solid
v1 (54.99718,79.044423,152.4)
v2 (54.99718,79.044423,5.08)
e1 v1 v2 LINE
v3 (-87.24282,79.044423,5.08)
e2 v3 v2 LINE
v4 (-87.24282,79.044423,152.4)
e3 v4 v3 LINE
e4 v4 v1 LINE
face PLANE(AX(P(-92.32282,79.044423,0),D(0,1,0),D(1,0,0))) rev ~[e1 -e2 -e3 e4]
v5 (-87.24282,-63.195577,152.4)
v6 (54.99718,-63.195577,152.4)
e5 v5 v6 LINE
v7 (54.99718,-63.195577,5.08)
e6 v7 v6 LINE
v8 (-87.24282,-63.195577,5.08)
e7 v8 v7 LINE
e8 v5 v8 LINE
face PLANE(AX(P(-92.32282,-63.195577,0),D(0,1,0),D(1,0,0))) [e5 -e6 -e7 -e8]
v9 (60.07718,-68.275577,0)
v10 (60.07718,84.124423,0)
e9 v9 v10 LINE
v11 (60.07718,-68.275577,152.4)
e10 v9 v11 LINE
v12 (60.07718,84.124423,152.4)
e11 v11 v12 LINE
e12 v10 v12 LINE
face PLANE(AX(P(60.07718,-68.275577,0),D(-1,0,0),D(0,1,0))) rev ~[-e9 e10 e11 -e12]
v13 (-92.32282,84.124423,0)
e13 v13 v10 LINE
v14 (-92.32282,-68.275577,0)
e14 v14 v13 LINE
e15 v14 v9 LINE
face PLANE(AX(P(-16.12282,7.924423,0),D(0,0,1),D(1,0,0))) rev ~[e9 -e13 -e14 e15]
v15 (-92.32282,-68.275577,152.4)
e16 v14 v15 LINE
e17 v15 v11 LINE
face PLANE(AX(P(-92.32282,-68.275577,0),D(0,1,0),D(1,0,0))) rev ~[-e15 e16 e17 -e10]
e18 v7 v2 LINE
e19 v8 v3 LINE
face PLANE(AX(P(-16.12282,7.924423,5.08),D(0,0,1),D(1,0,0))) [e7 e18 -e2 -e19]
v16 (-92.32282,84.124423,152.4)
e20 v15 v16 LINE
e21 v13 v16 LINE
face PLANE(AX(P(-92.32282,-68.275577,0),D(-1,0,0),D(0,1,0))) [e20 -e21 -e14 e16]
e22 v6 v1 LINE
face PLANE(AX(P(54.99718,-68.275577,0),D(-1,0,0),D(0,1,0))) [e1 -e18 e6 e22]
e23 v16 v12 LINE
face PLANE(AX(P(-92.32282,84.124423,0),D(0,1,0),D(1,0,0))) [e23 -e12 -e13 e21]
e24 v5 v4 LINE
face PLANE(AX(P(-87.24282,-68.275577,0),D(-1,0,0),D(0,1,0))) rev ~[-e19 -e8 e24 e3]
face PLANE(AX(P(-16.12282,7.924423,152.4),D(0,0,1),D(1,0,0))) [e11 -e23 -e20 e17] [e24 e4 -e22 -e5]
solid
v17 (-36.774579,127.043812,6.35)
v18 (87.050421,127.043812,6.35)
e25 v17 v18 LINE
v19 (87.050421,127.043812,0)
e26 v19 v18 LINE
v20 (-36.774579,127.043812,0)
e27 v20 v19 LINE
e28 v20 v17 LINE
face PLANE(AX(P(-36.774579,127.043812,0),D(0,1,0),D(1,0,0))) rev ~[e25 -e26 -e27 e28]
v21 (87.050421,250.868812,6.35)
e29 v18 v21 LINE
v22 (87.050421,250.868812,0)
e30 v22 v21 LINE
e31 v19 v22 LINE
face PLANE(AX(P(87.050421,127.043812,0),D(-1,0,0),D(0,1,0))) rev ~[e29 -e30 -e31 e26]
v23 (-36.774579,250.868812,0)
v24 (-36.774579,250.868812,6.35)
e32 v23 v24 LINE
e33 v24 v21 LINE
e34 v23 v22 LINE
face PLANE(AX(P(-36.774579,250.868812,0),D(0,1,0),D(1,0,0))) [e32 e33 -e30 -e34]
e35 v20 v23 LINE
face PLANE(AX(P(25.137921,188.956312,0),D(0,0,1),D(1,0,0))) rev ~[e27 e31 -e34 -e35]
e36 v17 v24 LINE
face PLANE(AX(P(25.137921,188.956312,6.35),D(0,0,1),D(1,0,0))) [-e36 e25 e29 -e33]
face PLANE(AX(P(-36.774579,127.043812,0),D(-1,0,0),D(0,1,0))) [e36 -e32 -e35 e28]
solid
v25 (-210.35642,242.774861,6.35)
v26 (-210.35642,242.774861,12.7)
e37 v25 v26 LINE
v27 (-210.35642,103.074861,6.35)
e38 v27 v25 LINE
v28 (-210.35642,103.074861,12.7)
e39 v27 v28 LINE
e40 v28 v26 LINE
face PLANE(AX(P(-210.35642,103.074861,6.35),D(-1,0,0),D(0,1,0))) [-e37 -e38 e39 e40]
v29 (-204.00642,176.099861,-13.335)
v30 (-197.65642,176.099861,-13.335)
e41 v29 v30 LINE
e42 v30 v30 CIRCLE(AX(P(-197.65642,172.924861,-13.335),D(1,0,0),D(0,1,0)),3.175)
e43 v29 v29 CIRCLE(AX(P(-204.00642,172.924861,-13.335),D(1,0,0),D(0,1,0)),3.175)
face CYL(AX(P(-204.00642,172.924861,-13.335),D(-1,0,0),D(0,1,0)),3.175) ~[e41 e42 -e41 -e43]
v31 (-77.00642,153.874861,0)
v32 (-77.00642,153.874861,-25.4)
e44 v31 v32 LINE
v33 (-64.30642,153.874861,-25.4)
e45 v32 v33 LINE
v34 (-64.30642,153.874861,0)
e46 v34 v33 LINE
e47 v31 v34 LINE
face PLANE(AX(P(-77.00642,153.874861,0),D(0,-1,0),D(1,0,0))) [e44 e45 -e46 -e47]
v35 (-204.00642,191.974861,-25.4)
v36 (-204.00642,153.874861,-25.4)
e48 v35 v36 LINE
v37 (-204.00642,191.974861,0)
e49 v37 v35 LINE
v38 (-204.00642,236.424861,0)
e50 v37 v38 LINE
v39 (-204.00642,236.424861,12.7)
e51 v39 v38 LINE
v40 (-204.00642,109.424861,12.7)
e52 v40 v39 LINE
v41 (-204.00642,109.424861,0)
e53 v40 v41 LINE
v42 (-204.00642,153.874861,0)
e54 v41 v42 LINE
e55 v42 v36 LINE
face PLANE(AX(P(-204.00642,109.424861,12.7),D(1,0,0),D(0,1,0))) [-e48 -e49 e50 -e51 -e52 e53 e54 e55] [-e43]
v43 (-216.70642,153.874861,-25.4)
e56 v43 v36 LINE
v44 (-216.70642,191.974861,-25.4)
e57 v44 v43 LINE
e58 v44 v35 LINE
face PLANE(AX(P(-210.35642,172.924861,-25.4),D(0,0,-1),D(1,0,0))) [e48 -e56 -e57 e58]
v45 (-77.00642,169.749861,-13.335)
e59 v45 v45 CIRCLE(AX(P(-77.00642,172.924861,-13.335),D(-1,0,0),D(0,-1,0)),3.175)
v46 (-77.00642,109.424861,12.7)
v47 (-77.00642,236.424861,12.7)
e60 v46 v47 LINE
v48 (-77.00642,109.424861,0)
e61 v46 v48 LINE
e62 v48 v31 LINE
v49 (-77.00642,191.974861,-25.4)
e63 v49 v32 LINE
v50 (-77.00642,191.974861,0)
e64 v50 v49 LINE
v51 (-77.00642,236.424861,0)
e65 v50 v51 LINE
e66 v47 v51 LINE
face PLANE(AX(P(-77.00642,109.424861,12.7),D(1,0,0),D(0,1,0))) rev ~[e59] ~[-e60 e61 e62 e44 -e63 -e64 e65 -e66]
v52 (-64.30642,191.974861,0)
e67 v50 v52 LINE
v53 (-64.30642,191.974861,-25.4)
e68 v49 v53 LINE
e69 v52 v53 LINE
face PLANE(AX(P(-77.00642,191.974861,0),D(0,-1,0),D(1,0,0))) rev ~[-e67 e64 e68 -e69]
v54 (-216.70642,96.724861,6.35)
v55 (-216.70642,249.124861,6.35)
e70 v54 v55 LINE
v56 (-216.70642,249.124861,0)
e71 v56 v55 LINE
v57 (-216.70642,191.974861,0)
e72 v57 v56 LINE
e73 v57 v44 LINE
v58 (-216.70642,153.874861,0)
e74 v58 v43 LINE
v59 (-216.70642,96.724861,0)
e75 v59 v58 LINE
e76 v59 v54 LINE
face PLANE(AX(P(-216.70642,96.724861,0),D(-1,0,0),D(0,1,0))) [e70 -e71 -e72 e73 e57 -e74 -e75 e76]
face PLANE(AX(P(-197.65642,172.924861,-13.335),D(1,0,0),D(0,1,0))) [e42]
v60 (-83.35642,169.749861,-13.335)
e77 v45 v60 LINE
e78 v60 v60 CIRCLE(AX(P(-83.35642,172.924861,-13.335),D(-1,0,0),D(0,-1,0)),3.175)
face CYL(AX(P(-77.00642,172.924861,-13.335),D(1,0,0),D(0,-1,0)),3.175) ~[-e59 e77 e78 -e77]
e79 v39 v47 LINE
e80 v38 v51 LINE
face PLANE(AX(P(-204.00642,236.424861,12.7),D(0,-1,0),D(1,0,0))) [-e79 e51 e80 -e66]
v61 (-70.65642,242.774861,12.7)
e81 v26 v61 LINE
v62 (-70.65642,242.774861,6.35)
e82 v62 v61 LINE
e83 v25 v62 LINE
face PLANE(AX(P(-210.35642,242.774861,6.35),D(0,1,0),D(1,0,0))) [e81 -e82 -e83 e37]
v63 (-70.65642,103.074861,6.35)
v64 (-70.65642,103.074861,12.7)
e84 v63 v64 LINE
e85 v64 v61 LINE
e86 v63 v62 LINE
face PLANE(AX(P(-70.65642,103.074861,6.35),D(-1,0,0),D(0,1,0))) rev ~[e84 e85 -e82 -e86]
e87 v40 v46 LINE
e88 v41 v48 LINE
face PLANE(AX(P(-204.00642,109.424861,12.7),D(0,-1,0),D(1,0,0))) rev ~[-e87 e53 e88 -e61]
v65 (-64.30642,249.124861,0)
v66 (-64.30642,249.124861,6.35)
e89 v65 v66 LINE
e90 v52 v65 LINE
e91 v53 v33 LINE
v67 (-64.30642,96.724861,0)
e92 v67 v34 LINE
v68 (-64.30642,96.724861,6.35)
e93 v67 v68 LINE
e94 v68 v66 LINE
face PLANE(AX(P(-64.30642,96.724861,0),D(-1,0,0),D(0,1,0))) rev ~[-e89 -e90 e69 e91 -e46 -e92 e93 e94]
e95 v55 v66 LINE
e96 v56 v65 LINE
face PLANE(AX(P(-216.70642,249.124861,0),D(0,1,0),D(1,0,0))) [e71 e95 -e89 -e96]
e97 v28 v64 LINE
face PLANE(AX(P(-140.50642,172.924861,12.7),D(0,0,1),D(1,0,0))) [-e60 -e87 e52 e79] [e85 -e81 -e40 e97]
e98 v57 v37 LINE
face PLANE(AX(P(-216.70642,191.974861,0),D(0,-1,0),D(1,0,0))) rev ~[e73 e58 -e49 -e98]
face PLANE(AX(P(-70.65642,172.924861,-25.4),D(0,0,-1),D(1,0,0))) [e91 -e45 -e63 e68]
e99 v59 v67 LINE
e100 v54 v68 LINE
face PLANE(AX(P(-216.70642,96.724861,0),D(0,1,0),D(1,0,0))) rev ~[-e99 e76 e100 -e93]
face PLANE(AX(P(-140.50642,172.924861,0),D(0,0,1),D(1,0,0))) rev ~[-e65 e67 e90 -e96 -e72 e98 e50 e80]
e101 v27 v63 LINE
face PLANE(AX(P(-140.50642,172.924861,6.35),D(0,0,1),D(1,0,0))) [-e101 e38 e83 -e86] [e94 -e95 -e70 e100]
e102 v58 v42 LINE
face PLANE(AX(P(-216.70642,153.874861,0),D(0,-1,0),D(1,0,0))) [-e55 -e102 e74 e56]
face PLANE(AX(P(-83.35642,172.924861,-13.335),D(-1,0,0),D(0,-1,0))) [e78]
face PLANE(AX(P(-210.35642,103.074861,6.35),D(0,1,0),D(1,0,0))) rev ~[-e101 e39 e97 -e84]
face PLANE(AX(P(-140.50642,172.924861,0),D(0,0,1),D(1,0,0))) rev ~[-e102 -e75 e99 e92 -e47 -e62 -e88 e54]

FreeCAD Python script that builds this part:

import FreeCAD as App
import Part
import Sketcher

V = App.Vector
Q = App.Units.Quantity


def faces_at(feature, points):
    """Names of the faces that lie closest to the given points."""
    faces = feature.Shape.Faces
    near = lambda p: min(range(len(faces)), key=lambda i: faces[i].distToShape(Part.Vertex(*p))[0])
    return sorted({f"Face{near(p) + 1}" for p in points})


def add_polygon(sketch, points):
    """Adds a closed chain of lines whose ends are joined by coincident constraints."""
    first, n = sketch.GeometryCount, len(points)
    for a, b in zip(points, points[1:] + points[:1]):
        sketch.addGeometry(Part.LineSegment(App.Vector(*a, 0), App.Vector(*b, 0)), False)
    for i in range(n):
        sketch.addConstraint(Sketcher.Constraint("Coincident", first + i, 2, first + (i + 1) % n, 1))

doc = App.newDocument("Part")
params = doc.addObject("Spreadsheet::Sheet", "Params")
for row, (alias, value) in enumerate([
    ("sketch1_width", "6 in"),
    ("pad1_length", "6 in"),
    ("thickness_wall", "0.2 in"),
    ("sketch2_width", "6 in"),
    ("pad2_length", "0.25 in"),
    ("sketch3_width", "5.5 in"),
    ("pad3_length", "0.25 in"),
    ("sketch4_width", "5 in"),
    ("pocket1_length", "1 in"),
    ("sketch5_width", "0.5 in"),
    ("sketch5_height", "1.5 in"),
    ("pad4_length", "1 in"),
    ("sketch6_diameter", "0.25 in"),
    ("pad5_length", "0.25 in"),
    ("sketch7_diameter", "0.25 in"),
    ("pad6_length", "0.25 in"),
    ("sketch8_width", "4.875 in"),
    ("pad7_length", "0.25 in"),
], start=1):
    params.set(f"A{row}", alias)
    params.set(f"B{row}", "=" + value)
    params.setAlias(f"B{row}", alias)

body = doc.addObject("PartDesign::Body", "Body")

# Sketch on XY plane
sketch1 = body.newObject("Sketcher::SketchObject", "Sketch")
sketch1.AttachmentSupport = (doc.getObject("XY_Plane"), [""])
sketch1.MapMode = "FlatFace"
add_polygon(sketch1, [(-92.32282, 84.124423), (-92.32282, -68.275577), (60.07718, -68.275577), (60.07718, 84.124423)])  # lines 0-3
sketch1.addConstraint([
    Sketcher.Constraint("Vertical", 0),
    Sketcher.Constraint("Horizontal", 1),
    Sketcher.Constraint("Vertical", 2),
    Sketcher.Constraint("Horizontal", 3),
    Sketcher.Constraint("Equal", 3, 0),
    Sketcher.Constraint("DistanceX", 1, 1, 1, 2, Q("6 in")),
    Sketcher.Constraint("DistanceX", 0, 2, -1, 1, 92.32282),
    Sketcher.Constraint("DistanceY", 0, 2, -1, 1, 68.275577),
])
sketch1.setExpression("Constraints[9]", "Params.sketch1_width")
pad1 = body.newObject("PartDesign::Pad", "Pad")
pad1.Profile = sketch1
pad1.setExpression("Length", "Params.pad1_length")
doc.recompute()

thickness = body.newObject("PartDesign::Thickness", "Thickness")
thickness.Base = (pad1, faces_at(pad1, [(-16.123, 7.924, 152.4)]))
thickness.setExpression("Value", "Params.thickness_wall")
thickness.Reversed = True
thickness.Join = "Arc"
body2 = doc.addObject("PartDesign::Body", "Body001")

# Sketch on XY plane
sketch2 = body2.newObject("Sketcher::SketchObject", "Sketch001")
sketch2.AttachmentSupport = (doc.getObject("XY_Plane001"), [""])
sketch2.MapMode = "FlatFace"
add_polygon(sketch2, [(-216.70642, 249.124861), (-216.70642, 96.724861), (-64.30642, 96.724861), (-64.30642, 249.124861)])  # lines 0-3
sketch2.addConstraint([
    Sketcher.Constraint("Vertical", 0),
    Sketcher.Constraint("Horizontal", 1),
    Sketcher.Constraint("Vertical", 2),
    Sketcher.Constraint("Horizontal", 3),
    Sketcher.Constraint("Equal", 3, 0),
    Sketcher.Constraint("DistanceX", 1, 1, 1, 2, Q("6 in")),
    Sketcher.Constraint("DistanceX", 0, 2, -1, 1, 216.70642),
    Sketcher.Constraint("DistanceY", -1, 1, 0, 2, 96.724861),
])
sketch2.setExpression("Constraints[9]", "Params.sketch2_width")
pad2 = body2.newObject("PartDesign::Pad", "Pad001")
pad2.Profile = sketch2
pad2.setExpression("Length", "Params.pad2_length")

# Sketch on XY plane
sketch3 = body2.newObject("Sketcher::SketchObject", "Sketch002")
sketch3.AttachmentSupport = (doc.getObject("XY_Plane001"), [""])
sketch3.MapMode = "FlatFace"
sketch3.AttachmentOffset = App.Placement(V(0, 0, 0.25 * 25.4), App.Rotation())
add_polygon(sketch3, [(-210.35642, 242.774861), (-210.35642, 103.074861), (-70.65642, 103.074861), (-70.65642, 242.774861)])  # lines 0-3
sketch3.addConstraint([
    Sketcher.Constraint("Vertical", 0),
    Sketcher.Constraint("Horizontal", 1),
    Sketcher.Constraint("Vertical", 2),
    Sketcher.Constraint("Horizontal", 3),
    Sketcher.Constraint("Equal", 3, 0),
    Sketcher.Constraint("DistanceX", 1, 1, 1, 2, Q("5.5 in")),
    Sketcher.Constraint("DistanceX", 0, 2, -1, 1, 210.35642),
    Sketcher.Constraint("DistanceY", -1, 1, 0, 2, 103.074861),
])
sketch3.setExpression("Constraints[9]", "Params.sketch3_width")
pad3 = body2.newObject("PartDesign::Pad", "Pad002")
pad3.Profile = sketch3
pad3.setExpression("Length", "Params.pad3_length")

# Sketch on XY plane
sketch4 = body2.newObject("Sketcher::SketchObject", "Sketch003")
sketch4.AttachmentSupport = (doc.getObject("XY_Plane001"), [""])
sketch4.MapMode = "FlatFace"
sketch4.AttachmentOffset = App.Placement(V(0, 0, 0.5 * 25.4), App.Rotation())
add_polygon(sketch4, [(-204.00642, 236.424861), (-204.00642, 109.424861), (-77.00642, 109.424861), (-77.00642, 236.424861)])  # lines 0-3
sketch4.addConstraint([
    Sketcher.Constraint("Vertical", 0),
    Sketcher.Constraint("Horizontal", 1),
    Sketcher.Constraint("Vertical", 2),
    Sketcher.Constraint("Horizontal", 3),
    Sketcher.Constraint("Equal", 3, 0),
    Sketcher.Constraint("DistanceX", 1, 1, 1, 2, Q("5 in")),
    Sketcher.Constraint("DistanceX", 0, 2, -1, 1, 204.00642),
    Sketcher.Constraint("DistanceY", -1, 1, 0, 2, 109.424861),
])
sketch4.setExpression("Constraints[9]", "Params.sketch4_width")
pocket1 = body2.newObject("PartDesign::Pocket", "Pocket")
pocket1.Profile = sketch4
pocket1.setExpression("Length", "Params.pocket1_length")

# Sketch on XY plane
sketch5 = body2.newObject("Sketcher::SketchObject", "Sketch004")
sketch5.AttachmentSupport = (doc.getObject("XY_Plane001"), [""])
sketch5.MapMode = "FlatFace"
add_polygon(sketch5, [(-216.70642, 153.874861), (-216.70642, 191.974861), (-204.00642, 191.974861), (-204.00642, 153.874861)])  # lines 0-3
add_polygon(sketch5, [(-77.00642, 153.874861), (-77.00642, 191.974861), (-64.30642, 191.974861), (-64.30642, 153.874861)])  # lines 4-7
sketch5.addConstraint([
    Sketcher.Constraint("Vertical", 0),
    Sketcher.Constraint("Horizontal", 1),
    Sketcher.Constraint("Vertical", 2),
    Sketcher.Constraint("Horizontal", 3),
    Sketcher.Constraint("Vertical", 4),
    Sketcher.Constraint("Horizontal", 5),
    Sketcher.Constraint("Vertical", 6),
    Sketcher.Constraint("Horizontal", 7),
    Sketcher.Constraint("Horizontal", 1, 2, 4, 2),
    Sketcher.Constraint("Horizontal", 3, 2, 6, 2),
    Sketcher.Constraint("Equal", 3, 5),
    Sketcher.Constraint("DistanceX", 1, 1, 1, 2, Q("0.5 in")),
    Sketcher.Constraint("DistanceY", 0, 1, 0, 2, Q("1.5 in")),
    Sketcher.Constraint("DistanceX", 1, 2, 4, 2, Q("5 in")),
    Sketcher.Constraint("DistanceX", 0, 2, -1, 1, 216.70642),
    Sketcher.Constraint("DistanceY", -1, 1, 0, 2, 191.974861),
])
sketch5.setExpression("Constraints[19]", "Params.sketch5_width")
sketch5.setExpression("Constraints[20]", "Params.sketch5_height")
pad4 = body2.newObject("PartDesign::Pad", "Pad003")
pad4.Profile = sketch5
pad4.setExpression("Length", "Params.pad4_length")
pad4.Reversed = True

# Sketch on YZ plane
sketch6 = body2.newObject("Sketcher::SketchObject", "Sketch005")
sketch6.AttachmentSupport = (doc.getObject("YZ_Plane001"), [""])
sketch6.MapMode = "FlatFace"
sketch6.AttachmentOffset = App.Placement(V(0, 0, -77.00642), App.Rotation())
sketch6.addGeometry(Part.Circle(V(172.924861, -13.335, 0), V(0, 0, 1), 3.175), False)
sketch6.addConstraint([
    Sketcher.Constraint("Diameter", 0, Q("0.25 in")),
    Sketcher.Constraint("DistanceY", 0, 3, -1, 1, Q("0.525 in")),
    Sketcher.Constraint("DistanceX", -1, 1, 0, 3, 172.924861),
])
sketch6.setExpression("Constraints[0]", "Params.sketch6_diameter")
pad5 = body2.newObject("PartDesign::Pad", "Pad004")
pad5.Profile = sketch6
pad5.setExpression("Length", "Params.pad5_length")
pad5.Reversed = True

# Sketch on YZ plane
sketch7 = body2.newObject("Sketcher::SketchObject", "Sketch006")
sketch7.AttachmentSupport = (doc.getObject("YZ_Plane001"), [""])
sketch7.MapMode = "FlatFace"
sketch7.AttachmentOffset = App.Placement(V(0, 0, -204.00642), App.Rotation())
sketch7.addGeometry(Part.Circle(V(172.924861, -13.335, 0), V(0, 0, 1), 3.175), False)
sketch7.addConstraint([
    Sketcher.Constraint("Diameter", 0, Q("0.25 in")),
    Sketcher.Constraint("DistanceY", 0, 3, -1, 1, Q("0.525 in")),
    Sketcher.Constraint("DistanceX", -1, 1, 0, 3, 172.924861),
])
sketch7.setExpression("Constraints[0]", "Params.sketch7_diameter")
pad6 = body2.newObject("PartDesign::Pad", "Pad005")
pad6.Profile = sketch7
pad6.setExpression("Length", "Params.pad6_length")
body3 = doc.addObject("PartDesign::Body", "Body002")

# Sketch on XY plane
sketch8 = body3.newObject("Sketcher::SketchObject", "Sketch007")
sketch8.AttachmentSupport = (doc.getObject("XY_Plane002"), [""])
sketch8.MapMode = "FlatFace"
add_polygon(sketch8, [(-36.774579, 250.868812), (-36.774579, 127.043812), (87.050421, 127.043812), (87.050421, 250.868812)])  # lines 0-3
sketch8.addConstraint([
    Sketcher.Constraint("Vertical", 0),
    Sketcher.Constraint("Horizontal", 1),
    Sketcher.Constraint("Vertical", 2),
    Sketcher.Constraint("Horizontal", 3),
    Sketcher.Constraint("Equal", 3, 0),
    Sketcher.Constraint("DistanceX", 1, 1, 1, 2, Q("4.875 in")),
    Sketcher.Constraint("DistanceX", 0, 2, -1, 1, 36.774579),
    Sketcher.Constraint("DistanceY", -1, 1, 2, 2, 250.868812),
])
sketch8.setExpression("Constraints[9]", "Params.sketch8_width")
pad7 = body3.newObject("PartDesign::Pad", "Pad006")
pad7.Profile = sketch8
pad7.setExpression("Length", "Params.pad7_length")

doc.recompute()
